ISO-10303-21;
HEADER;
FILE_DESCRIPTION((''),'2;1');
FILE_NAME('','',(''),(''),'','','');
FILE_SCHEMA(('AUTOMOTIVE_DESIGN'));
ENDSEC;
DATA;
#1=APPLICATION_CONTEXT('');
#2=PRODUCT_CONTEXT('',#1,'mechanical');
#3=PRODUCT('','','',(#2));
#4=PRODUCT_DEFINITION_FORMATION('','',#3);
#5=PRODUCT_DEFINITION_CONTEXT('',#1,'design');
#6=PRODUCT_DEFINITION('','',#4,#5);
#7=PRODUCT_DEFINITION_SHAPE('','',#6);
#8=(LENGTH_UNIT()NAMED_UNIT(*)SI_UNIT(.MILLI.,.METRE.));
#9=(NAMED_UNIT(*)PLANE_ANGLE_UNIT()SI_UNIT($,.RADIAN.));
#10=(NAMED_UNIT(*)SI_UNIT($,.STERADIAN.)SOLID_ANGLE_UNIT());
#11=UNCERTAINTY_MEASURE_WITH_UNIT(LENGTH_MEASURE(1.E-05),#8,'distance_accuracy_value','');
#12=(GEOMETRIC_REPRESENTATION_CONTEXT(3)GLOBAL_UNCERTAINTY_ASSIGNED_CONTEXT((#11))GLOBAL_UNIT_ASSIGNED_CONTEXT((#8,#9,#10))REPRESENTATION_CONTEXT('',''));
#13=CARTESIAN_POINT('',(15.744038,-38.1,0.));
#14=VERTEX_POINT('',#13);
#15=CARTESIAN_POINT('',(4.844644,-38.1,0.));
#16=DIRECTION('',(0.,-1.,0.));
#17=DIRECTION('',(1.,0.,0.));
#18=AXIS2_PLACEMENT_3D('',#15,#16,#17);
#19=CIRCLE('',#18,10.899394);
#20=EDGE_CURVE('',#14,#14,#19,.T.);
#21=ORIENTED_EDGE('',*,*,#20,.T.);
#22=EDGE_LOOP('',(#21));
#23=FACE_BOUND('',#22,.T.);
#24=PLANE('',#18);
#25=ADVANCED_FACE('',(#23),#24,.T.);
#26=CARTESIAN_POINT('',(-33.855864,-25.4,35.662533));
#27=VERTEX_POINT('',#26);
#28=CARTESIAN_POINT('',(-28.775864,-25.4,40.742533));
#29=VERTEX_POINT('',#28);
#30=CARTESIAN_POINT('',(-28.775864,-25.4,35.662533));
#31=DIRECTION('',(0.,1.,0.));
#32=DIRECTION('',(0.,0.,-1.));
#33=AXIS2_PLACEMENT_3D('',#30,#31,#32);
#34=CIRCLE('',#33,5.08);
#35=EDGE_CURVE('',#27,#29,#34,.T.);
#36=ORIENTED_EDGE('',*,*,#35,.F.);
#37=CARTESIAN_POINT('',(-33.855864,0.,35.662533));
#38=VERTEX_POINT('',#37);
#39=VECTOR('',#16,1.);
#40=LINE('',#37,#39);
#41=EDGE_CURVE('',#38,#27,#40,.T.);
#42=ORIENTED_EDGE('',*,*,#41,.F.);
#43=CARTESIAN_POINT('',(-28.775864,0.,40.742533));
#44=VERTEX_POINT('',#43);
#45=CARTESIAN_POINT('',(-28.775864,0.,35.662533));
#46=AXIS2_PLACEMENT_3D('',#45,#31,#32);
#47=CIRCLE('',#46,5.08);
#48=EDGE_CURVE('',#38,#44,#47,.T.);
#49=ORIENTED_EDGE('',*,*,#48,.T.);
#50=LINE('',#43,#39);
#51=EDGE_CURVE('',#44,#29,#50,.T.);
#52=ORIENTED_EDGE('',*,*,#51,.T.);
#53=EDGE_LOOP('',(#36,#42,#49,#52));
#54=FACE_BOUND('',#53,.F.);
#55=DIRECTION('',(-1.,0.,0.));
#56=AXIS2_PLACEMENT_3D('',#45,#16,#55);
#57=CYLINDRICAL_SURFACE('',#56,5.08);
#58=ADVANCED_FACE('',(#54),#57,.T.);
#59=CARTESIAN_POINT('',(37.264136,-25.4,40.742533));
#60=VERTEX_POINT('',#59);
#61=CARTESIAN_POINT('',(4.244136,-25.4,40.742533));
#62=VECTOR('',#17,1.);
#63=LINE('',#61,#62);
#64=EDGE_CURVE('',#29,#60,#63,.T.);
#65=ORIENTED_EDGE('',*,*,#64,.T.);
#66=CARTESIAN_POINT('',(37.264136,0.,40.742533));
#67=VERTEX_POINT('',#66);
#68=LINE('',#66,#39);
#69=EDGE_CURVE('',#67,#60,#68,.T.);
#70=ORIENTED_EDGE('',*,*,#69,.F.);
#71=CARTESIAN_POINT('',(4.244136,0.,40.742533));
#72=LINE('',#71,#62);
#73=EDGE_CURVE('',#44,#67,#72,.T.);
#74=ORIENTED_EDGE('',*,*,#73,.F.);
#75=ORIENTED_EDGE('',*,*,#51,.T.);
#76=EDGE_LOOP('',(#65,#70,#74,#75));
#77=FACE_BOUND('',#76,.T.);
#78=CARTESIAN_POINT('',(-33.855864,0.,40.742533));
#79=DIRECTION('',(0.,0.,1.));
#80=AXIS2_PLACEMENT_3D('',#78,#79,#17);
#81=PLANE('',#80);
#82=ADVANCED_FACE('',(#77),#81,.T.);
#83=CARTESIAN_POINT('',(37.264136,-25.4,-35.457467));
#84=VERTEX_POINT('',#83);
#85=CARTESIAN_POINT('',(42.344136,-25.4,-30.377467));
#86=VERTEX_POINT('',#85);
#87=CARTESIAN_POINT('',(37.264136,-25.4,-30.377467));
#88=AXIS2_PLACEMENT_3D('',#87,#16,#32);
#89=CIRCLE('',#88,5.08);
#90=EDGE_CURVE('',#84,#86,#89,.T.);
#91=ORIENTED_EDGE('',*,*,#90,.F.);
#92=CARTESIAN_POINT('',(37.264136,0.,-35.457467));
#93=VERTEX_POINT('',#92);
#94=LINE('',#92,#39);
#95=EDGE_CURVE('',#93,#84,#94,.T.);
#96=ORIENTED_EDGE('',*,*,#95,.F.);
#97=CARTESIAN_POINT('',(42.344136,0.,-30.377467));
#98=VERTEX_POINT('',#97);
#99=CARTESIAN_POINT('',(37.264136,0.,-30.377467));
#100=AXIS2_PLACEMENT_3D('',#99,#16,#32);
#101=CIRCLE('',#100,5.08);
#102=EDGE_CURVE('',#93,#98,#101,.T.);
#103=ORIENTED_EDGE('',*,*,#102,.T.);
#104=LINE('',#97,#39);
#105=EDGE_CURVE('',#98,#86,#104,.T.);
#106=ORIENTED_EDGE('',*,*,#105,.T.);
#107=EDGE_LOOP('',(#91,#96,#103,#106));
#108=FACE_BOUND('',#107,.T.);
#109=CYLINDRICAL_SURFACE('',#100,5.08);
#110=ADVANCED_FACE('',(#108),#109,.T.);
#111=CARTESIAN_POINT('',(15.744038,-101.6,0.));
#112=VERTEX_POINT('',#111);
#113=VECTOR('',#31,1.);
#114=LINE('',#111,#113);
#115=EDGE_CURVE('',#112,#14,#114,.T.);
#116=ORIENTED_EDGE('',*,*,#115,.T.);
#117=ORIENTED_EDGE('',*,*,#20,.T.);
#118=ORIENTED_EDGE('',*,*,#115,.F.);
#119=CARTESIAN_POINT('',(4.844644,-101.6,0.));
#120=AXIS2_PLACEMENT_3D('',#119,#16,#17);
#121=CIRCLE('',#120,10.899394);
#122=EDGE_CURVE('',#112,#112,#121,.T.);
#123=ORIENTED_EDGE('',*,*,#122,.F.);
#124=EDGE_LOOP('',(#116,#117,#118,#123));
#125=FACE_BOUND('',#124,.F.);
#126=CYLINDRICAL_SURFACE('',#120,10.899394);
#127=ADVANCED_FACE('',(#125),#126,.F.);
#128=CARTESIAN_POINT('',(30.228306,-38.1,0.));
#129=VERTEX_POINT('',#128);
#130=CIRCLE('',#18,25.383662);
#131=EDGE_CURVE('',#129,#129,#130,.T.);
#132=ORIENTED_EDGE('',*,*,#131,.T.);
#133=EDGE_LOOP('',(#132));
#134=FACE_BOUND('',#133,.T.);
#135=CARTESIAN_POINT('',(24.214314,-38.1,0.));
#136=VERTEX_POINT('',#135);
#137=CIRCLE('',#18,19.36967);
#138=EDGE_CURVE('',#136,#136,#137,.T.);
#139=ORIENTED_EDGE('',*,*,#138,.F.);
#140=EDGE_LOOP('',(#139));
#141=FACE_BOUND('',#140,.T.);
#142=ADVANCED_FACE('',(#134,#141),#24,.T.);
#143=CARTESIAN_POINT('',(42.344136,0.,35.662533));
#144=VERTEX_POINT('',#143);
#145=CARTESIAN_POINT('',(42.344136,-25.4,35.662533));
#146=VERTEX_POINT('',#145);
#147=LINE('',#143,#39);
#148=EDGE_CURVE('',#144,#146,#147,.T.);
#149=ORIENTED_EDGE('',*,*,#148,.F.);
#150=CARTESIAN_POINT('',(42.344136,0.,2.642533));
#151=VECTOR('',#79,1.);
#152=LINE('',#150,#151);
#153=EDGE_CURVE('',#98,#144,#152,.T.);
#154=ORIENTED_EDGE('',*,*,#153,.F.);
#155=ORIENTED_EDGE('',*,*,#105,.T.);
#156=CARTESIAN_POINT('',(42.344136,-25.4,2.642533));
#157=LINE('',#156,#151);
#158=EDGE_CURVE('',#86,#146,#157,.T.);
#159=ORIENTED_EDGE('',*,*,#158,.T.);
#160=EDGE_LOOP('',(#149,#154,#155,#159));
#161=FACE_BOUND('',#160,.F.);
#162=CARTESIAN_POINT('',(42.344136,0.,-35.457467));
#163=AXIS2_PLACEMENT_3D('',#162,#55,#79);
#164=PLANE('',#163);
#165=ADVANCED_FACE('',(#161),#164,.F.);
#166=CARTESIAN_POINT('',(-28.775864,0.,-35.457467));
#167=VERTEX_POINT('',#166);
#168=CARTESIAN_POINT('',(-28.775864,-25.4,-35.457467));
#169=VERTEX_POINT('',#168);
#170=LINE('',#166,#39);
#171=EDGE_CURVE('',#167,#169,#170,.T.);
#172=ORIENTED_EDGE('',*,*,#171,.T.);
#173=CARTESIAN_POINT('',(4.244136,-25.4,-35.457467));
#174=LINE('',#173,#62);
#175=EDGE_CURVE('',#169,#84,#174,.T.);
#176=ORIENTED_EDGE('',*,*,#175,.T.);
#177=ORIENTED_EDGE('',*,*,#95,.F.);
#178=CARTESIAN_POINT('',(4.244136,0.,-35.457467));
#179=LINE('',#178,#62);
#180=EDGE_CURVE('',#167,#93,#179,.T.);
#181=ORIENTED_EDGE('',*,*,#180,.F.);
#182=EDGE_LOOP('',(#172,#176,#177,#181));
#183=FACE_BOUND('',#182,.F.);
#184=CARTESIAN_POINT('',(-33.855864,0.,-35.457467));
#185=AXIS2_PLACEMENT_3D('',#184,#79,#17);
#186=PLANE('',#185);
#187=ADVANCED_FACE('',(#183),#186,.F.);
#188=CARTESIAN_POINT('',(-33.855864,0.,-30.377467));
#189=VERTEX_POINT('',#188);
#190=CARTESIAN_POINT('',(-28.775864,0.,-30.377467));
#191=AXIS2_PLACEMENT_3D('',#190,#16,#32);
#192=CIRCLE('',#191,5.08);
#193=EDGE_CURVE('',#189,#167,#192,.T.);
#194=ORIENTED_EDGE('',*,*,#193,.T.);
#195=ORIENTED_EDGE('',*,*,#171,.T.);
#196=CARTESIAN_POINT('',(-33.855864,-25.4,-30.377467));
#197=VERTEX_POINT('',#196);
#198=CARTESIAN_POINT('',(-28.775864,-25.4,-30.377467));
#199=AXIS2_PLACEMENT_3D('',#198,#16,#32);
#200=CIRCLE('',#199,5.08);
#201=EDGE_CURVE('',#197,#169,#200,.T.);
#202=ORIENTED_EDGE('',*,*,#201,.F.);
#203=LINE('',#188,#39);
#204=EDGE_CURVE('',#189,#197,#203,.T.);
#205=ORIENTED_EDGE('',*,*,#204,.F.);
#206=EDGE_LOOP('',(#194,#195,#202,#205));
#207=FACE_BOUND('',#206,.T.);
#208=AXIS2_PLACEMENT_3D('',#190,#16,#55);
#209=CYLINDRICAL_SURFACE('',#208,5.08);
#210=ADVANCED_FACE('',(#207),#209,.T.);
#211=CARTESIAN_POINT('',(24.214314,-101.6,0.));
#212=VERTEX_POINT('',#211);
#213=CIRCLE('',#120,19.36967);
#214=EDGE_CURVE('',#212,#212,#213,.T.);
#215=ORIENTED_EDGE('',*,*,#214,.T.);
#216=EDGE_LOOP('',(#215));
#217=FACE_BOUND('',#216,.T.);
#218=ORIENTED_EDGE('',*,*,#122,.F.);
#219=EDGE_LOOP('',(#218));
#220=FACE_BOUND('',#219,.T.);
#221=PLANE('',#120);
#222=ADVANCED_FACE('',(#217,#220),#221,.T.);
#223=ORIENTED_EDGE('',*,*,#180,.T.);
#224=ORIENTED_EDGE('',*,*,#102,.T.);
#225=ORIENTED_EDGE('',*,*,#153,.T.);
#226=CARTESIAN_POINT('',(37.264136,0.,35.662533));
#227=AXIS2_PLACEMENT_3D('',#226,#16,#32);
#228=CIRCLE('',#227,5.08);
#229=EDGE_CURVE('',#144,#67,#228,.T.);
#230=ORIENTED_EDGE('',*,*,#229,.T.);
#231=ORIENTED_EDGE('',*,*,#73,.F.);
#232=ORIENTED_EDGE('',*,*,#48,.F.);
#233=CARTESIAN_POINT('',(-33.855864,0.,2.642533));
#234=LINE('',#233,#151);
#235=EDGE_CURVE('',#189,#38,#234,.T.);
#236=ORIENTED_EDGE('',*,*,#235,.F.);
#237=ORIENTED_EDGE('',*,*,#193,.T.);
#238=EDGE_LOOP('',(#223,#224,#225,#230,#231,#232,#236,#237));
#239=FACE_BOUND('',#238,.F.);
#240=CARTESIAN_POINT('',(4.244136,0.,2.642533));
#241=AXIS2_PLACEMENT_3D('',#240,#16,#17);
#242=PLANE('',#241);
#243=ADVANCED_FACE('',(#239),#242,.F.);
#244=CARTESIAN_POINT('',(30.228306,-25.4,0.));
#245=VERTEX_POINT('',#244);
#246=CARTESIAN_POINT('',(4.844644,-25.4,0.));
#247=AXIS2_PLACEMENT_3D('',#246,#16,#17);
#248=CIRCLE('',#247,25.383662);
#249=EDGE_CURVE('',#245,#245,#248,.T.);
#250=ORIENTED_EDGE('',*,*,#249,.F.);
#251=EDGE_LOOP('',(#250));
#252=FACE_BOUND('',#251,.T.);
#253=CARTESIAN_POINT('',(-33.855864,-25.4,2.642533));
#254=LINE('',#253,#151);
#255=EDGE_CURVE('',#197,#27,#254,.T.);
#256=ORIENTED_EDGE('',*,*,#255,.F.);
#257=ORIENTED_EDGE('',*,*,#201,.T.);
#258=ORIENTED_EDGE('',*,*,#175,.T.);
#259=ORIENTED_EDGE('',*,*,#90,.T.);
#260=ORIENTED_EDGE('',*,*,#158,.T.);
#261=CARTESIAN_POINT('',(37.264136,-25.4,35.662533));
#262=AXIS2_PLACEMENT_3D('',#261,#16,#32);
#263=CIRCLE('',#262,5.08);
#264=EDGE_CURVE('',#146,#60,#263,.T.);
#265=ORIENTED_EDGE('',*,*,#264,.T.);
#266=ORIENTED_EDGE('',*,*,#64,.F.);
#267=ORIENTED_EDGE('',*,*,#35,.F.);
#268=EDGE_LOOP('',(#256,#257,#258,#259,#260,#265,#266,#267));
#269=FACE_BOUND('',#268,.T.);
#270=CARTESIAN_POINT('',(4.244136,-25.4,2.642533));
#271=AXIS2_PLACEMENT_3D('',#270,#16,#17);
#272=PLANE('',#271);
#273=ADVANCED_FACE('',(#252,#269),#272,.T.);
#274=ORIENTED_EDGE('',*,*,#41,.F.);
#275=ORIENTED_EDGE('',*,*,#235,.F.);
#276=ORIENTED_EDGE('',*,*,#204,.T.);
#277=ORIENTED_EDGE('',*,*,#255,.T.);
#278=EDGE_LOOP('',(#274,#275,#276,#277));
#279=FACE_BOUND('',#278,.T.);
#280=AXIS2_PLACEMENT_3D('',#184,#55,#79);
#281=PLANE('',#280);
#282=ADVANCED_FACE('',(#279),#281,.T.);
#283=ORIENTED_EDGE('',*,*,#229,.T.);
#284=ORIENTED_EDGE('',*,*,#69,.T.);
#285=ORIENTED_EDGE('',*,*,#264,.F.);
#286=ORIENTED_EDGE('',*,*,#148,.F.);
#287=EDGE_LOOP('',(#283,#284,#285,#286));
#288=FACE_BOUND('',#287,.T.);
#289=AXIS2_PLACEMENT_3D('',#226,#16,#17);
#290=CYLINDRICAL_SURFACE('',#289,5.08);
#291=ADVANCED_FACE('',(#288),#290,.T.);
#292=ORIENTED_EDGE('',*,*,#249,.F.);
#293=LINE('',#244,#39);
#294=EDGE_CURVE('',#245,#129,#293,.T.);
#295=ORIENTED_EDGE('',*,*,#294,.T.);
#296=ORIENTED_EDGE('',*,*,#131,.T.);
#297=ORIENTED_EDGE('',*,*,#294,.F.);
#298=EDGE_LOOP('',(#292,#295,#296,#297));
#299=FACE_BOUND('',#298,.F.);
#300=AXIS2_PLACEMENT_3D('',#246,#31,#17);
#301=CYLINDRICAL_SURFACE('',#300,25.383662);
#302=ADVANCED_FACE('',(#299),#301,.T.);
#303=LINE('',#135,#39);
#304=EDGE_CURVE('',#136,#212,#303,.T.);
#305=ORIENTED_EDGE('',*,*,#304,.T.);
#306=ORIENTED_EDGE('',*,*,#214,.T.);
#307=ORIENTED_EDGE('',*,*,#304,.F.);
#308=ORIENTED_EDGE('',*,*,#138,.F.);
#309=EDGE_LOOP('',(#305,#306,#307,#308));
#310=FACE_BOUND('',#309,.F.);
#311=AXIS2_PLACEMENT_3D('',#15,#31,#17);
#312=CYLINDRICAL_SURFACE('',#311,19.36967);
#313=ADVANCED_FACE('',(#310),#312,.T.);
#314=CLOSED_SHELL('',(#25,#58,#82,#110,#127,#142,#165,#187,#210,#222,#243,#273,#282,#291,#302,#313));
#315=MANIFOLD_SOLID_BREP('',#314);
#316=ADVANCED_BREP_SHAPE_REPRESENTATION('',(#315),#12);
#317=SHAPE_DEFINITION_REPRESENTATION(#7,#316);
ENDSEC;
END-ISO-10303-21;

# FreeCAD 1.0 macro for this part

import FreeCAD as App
import Part
import Sketcher
from FreeCAD import Vector
Q = App.Units.Quantity


def edges_at(feature, points):
    """Names of the edges that pass closest to the given points."""
    edges = feature.Shape.Edges
    near = lambda p: min(range(len(edges)), key=lambda i: edges[i].distToShape(Part.Vertex(*p))[0])
    return sorted({f"Edge{near(p) + 1}" for p in points})


def add_polygon(sketch, points):
    """Adds a closed chain of lines whose ends are joined by coincident constraints."""
    first, n = sketch.GeometryCount, len(points)
    for a, b in zip(points, points[1:] + points[:1]):
        sketch.addGeometry(Part.LineSegment(App.Vector(*a, 0), App.Vector(*b, 0)), False)
    for i in range(n):
        sketch.addConstraint(Sketcher.Constraint("Coincident", first + i, 2, first + (i + 1) % n, 1))

doc = App.newDocument("Part")
body = doc.addObject("PartDesign::Body", "Body")

# Sketch on XZ plane
sketch1 = doc.addObject("Sketcher::SketchObject", "Sketch")
body.addObject(sketch1)
sketch1.AttachmentSupport = (doc.XZ_Plane, [""])
sketch1.MapMode = "FlatFace"
add_polygon(sketch1, [(-34, 41), (-34, -35), (42, -35), (42, 41)])  # lines 0-3
sketch1.addConstraint(Sketcher.Constraint("Vertical", 0))
sketch1.addConstraint(Sketcher.Constraint("Horizontal", 1))
sketch1.addConstraint(Sketcher.Constraint("Vertical", 2))
sketch1.addConstraint(Sketcher.Constraint("Horizontal", 3))
sketch1.addConstraint(Sketcher.Constraint("Equal", 3, 0))
sketch1.addConstraint(Sketcher.Constraint("DistanceX", 1, 1, 1, 2, Q("3 in")))
sketch1.addConstraint(Sketcher.Constraint("DistanceX", 0, 2, -1, 1, 33.855864))
sketch1.addConstraint(Sketcher.Constraint("DistanceY", 0, 2, -1, 1, 35.457467))
pad1 = doc.addObject("PartDesign::Pad", "Pad")
body.addObject(pad1)
pad1.Profile = sketch1
pad1.Length = Q("1 in")
doc.recompute()

fillet = doc.addObject("PartDesign::Fillet", "Fillet")
body.addObject(fillet)
fillet.Base = (pad1, edges_at(pad1, [
    (-33.856, -12.7, 40.743),
    (42.344, -12.7, 40.743),
    (42.344, -12.7, -35.457),
    (-33.856, -12.7, -35.457),
]))
fillet.Radius = Q("0.2 in")

# Sketch on XZ plane
sketch2 = doc.addObject("Sketcher::SketchObject", "Sketch001")
body.addObject(sketch2)
sketch2.AttachmentSupport = (doc.XZ_Plane, [""])
sketch2.MapMode = "FlatFace"
sketch2.AttachmentOffset = App.Placement(Vector(0, 0, 1 * 25.4), App.Rotation())
sketch2.addGeometry(Part.Circle(Vector(5, 0, 0), Vector(0, 0, 1), 25), False)
sketch2.addConstraint(Sketcher.Constraint("PointOnObject", 0, 3, -1))
sketch2.addConstraint(Sketcher.Constraint("Diameter", 0, 50.767324))
sketch2.addConstraint(Sketcher.Constraint("DistanceX", -1, 1, 0, 3, 4.844644))
pad2 = doc.addObject("PartDesign::Pad", "Pad001")
body.addObject(pad2)
pad2.Profile = sketch2
pad2.Length = Q("0.5 in")

# Sketch on XZ plane
sketch3 = doc.addObject("Sketcher::SketchObject", "Sketch002")
body.addObject(sketch3)
sketch3.AttachmentSupport = (doc.XZ_Plane, [""])
sketch3.MapMode = "FlatFace"
sketch3.AttachmentOffset = App.Placement(Vector(0, 0, 1.5 * 25.4), App.Rotation())
sketch3.addGeometry(Part.Circle(Vector(5, 0, 0), Vector(0, 0, 1), 19), False)
sketch3.addConstraint(Sketcher.Constraint("PointOnObject", 0, 3, -1))
sketch3.addConstraint(Sketcher.Constraint("Diameter", 0, 38.73934))
sketch3.addConstraint(Sketcher.Constraint("DistanceX", -1, 1, 0, 3, 4.844644))
pad3 = doc.addObject("PartDesign::Pad", "Pad002")
body.addObject(pad3)
pad3.Profile = sketch3
pad3.Length = Q("2.5 in")

# Sketch on XZ plane
sketch4 = doc.addObject("Sketcher::SketchObject", "Sketch003")
body.addObject(sketch4)
sketch4.AttachmentSupport = (doc.XZ_Plane, [""])
sketch4.MapMode = "FlatFace"
sketch4.AttachmentOffset = App.Placement(Vector(0, 0, 4 * 25.4), App.Rotation())
sketch4.addGeometry(Part.Circle(Vector(5, 0, 0), Vector(0, 0, 1), 11), False)
sketch4.addConstraint(Sketcher.Constraint("PointOnObject", 0, 3, -1))
sketch4.addConstraint(Sketcher.Constraint("Diameter", 0, 21.798788))
sketch4.addConstraint(Sketcher.Constraint("DistanceX", -1, 1, 0, 3, 4.844644))
pocket1 = doc.addObject("PartDesign::Pocket", "Pocket")
body.addObject(pocket1)
pocket1.Profile = sketch4
pocket1.Length = Q("2.5 in")

doc.recompute()
